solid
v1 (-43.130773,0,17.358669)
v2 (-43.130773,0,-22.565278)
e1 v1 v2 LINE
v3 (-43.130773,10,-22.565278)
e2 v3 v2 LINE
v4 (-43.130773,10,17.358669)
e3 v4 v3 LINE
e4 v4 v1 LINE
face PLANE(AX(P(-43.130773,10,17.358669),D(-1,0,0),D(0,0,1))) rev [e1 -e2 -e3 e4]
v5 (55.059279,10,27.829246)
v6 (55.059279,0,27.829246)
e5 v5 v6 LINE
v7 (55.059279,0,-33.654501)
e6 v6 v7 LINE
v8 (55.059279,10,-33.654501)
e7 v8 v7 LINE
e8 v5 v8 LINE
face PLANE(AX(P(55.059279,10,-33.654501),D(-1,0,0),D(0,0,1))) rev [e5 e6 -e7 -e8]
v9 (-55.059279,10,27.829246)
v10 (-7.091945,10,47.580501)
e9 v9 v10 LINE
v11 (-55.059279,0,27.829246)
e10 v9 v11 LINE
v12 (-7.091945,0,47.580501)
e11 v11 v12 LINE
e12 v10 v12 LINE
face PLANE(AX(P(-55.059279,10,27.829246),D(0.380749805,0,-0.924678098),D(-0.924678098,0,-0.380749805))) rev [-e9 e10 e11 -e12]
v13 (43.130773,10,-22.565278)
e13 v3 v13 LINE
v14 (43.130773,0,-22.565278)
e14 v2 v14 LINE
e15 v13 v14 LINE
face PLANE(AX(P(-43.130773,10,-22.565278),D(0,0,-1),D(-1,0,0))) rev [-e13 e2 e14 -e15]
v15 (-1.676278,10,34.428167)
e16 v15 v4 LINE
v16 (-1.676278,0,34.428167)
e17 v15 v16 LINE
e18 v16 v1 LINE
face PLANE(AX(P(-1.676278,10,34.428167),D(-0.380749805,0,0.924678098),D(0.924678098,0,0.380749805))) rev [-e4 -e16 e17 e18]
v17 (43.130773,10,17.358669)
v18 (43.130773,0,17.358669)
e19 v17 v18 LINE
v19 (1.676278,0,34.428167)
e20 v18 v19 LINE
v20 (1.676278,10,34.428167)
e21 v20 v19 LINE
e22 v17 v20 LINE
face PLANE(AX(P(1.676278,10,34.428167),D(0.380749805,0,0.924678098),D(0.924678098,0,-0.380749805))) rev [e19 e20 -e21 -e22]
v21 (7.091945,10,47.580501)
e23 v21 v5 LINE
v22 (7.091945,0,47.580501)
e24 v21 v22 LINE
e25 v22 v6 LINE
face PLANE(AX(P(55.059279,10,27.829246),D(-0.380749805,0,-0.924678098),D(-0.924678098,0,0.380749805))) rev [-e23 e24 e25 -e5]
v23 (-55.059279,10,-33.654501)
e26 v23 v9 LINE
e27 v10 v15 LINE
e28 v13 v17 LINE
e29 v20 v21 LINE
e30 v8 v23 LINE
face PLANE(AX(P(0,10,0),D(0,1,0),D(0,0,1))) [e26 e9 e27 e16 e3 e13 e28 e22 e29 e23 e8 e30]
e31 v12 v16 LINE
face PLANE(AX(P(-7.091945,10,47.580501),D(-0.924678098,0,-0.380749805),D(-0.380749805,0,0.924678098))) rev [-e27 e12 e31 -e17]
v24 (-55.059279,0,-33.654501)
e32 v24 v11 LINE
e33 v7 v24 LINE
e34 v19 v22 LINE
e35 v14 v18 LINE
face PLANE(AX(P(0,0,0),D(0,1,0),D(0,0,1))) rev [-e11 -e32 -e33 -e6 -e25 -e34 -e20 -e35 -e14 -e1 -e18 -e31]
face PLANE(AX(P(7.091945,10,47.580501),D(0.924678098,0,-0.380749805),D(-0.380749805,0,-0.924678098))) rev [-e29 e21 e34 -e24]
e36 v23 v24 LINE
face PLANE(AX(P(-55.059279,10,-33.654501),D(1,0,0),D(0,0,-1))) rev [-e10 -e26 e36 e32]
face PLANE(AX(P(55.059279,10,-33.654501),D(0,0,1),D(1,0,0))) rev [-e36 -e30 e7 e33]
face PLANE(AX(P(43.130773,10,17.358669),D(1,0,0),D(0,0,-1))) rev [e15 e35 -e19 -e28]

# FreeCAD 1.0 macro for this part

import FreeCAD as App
import Part
import Sketcher

V = App.Vector
Q = App.Units.Quantity

doc = App.newDocument("Part")
body = doc.addObject("PartDesign::Body", "Body")

# Sketch on XZ plane
sketch1 = body.newObject("Sketcher::SketchObject", "Sketch")
sketch1.AttachmentSupport = (doc.getObject("XZ_Plane"), [""])
sketch1.MapMode = "FlatFace"
sketch1.addGeometry([
    Part.LineSegment(V(-7, 48, 0), V(-2, 34, 0)),  # 0
    Part.LineSegment(V(-2, 34, 0), V(-43, 17, 0)),  # 1
    Part.LineSegment(V(-43, 17, 0), V(-43, -23, 0)),  # 2
    Part.LineSegment(V(-43, -23, 0), V(43, -23, 0)),  # 3
    Part.LineSegment(V(43, -23, 0), V(43, 17, 0)),  # 4
    Part.LineSegment(V(43, 17, 0), V(2, 34, 0)),  # 5
    Part.LineSegment(V(2, 34, 0), V(7, 48, 0)),  # 6
    Part.LineSegment(V(7, 48, 0), V(55, 28, 0)),  # 7
    Part.LineSegment(V(55, 28, 0), V(55, -34, 0)),  # 8
    Part.LineSegment(V(55, -34, 0), V(-55, -34, 0)),  # 9
    Part.LineSegment(V(-55, -34, 0), V(-55, 28, 0)),  # 10
    Part.LineSegment(V(-55, 28, 0), V(-7, 48, 0)),  # 11
], False)
sketch1.addConstraint([
    Sketcher.Constraint("Coincident", 0, 2, 1, 1),
    Sketcher.Constraint("Coincident", 1, 2, 2, 1),
    Sketcher.Constraint("Coincident", 2, 2, 3, 1),
    Sketcher.Constraint("Coincident", 3, 2, 4, 1),
    Sketcher.Constraint("Coincident", 4, 2, 5, 1),
    Sketcher.Constraint("Coincident", 5, 2, 6, 1),
    Sketcher.Constraint("Coincident", 6, 2, 7, 1),
    Sketcher.Constraint("Coincident", 7, 2, 8, 1),
    Sketcher.Constraint("Coincident", 8, 2, 9, 1),
    Sketcher.Constraint("Coincident", 9, 2, 10, 1),
    Sketcher.Constraint("Coincident", 10, 2, 11, 1),
    Sketcher.Constraint("Coincident", 11, 2, 0, 1),
    Sketcher.Constraint("Vertical", 2),
    Sketcher.Constraint("Horizontal", 3),
    Sketcher.Constraint("Vertical", 4),
    Sketcher.Constraint("Vertical", 8),
    Sketcher.Constraint("Horizontal", 9),
    Sketcher.Constraint("Vertical", 10),
    Sketcher.Constraint("Symmetric", 1, 2, 4, 2, -2),
    Sketcher.Constraint("Symmetric", 0, 2, 5, 2, -2),
    Sketcher.Constraint("Symmetric", 7, 2, 10, 2, -2),
    Sketcher.Constraint("Symmetric", 6, 2, 11, 2, -2),
    Sketcher.Constraint("Perpendicular", 0, 1),
    Sketcher.Constraint("Perpendicular", 6, 7),
    Sketcher.Constraint("DistanceX", 5, 2, 7, 2, Q("53.383001 mm")),
    Sketcher.Constraint("DistanceY", -1, 1, 6, 2, Q("47.580501 mm")),
    Sketcher.Constraint("DistanceY", 8, 2, -1, 1, Q("33.654501 mm")),
    Sketcher.Constraint("DistanceY", 1, 2, 0, 2, Q("17.069498 mm")),
    Sketcher.Constraint("Distance", 0, Q("14.223689 mm")),
    Sketcher.Constraint("Distance", 1, Q("44.831272 mm")),
    Sketcher.Constraint("DistanceX", 3, 1, 3, 2, Q("86.261546 mm")),
    Sketcher.Constraint("DistanceY", 2, 2, 2, 1, Q("39.923948 mm")),
])
pad1 = body.newObject("PartDesign::Pad", "Pad")
pad1.Profile = sketch1
pad1.Length = 10
pad1.Reversed = True

doc.recompute()
